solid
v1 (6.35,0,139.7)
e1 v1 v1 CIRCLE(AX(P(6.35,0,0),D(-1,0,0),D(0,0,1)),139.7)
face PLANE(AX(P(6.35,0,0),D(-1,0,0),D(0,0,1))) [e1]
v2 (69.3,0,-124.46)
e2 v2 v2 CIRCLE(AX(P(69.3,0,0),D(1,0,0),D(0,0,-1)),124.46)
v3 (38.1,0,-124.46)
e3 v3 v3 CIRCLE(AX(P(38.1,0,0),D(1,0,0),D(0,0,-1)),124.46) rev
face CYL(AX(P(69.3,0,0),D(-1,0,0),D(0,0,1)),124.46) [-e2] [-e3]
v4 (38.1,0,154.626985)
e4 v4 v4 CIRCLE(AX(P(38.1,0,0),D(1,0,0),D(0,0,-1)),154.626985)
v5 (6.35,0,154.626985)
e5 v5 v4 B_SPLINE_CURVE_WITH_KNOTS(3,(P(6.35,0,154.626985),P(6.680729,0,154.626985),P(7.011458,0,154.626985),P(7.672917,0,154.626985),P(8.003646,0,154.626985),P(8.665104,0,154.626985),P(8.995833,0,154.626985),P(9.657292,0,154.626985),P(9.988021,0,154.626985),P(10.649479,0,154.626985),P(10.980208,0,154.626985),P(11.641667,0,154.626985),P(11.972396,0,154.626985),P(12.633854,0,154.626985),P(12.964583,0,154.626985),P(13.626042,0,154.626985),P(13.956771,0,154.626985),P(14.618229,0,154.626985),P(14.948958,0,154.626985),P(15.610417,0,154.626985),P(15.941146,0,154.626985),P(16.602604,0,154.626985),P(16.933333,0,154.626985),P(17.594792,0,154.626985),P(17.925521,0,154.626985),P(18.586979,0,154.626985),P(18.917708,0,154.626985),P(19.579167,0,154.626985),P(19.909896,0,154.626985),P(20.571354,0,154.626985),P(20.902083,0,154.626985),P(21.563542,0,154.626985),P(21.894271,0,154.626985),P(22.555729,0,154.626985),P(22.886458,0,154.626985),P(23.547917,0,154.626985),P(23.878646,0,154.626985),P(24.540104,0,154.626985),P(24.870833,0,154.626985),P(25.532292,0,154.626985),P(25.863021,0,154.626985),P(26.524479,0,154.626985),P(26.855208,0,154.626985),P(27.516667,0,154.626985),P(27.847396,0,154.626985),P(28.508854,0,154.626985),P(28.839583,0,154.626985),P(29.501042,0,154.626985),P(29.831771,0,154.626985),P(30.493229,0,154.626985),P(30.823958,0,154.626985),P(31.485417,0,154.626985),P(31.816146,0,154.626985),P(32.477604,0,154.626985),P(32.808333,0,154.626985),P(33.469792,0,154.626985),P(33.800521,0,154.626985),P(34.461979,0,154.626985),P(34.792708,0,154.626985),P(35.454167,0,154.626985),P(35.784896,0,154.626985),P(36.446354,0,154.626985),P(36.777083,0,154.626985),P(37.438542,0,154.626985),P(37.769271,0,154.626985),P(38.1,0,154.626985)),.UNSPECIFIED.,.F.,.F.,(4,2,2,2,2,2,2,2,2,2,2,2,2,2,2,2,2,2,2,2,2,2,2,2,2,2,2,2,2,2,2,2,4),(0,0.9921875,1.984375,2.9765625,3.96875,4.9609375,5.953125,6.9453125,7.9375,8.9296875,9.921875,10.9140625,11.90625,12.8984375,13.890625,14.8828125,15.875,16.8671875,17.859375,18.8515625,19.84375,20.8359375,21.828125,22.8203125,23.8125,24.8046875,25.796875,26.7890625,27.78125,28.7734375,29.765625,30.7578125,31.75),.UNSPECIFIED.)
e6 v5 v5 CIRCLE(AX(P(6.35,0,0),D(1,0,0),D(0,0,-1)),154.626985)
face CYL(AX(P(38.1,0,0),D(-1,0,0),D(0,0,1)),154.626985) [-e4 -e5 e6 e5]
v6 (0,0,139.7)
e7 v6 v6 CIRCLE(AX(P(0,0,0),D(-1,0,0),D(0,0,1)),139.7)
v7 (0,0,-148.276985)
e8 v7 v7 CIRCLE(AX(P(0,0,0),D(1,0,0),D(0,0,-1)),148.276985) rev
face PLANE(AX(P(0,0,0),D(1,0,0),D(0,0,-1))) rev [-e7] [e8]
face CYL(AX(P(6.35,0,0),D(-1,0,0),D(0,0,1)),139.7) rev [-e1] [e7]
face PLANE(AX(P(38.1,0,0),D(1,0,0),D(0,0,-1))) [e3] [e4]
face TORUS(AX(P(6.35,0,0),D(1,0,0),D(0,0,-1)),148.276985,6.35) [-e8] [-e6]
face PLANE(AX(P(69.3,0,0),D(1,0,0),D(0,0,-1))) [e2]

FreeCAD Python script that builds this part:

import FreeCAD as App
import Part
import Sketcher
from FreeCAD import Vector
Q = App.Units.Quantity


def edges_at(feature, points):
    """Names of the edges that pass closest to the given points."""
    edges = feature.Shape.Edges
    near = lambda p: min(range(len(edges)), key=lambda i: edges[i].distToShape(Part.Vertex(*p))[0])
    return sorted({f"Edge{near(p) + 1}" for p in points})

doc = App.newDocument("Part")
params = doc.addObject("Spreadsheet::Sheet", "Params")
for row, (alias, value) in enumerate([
    ("pad1_length", "1.5 in"),
    ("sketch2_diameter", "9.8 in"),
    ("pad2_length", "69.3 mm"),
    ("sketch3_diameter", "11 in"),
    ("pocket1_length", "0.25 in"),
    ("fillet_radius", "0.25 in"),
], start=1):
    params.set(f"A{row}", alias)
    params.set(f"B{row}", "=" + value)
    params.setAlias(f"B{row}", alias)

body = doc.addObject("PartDesign::Body", "Body")

# Sketch on YZ plane
sketch1 = body.newObject("Sketcher::SketchObject", "Sketch")
sketch1.AttachmentSupport = (doc.getObject("YZ_Plane"), [""])
sketch1.MapMode = "FlatFace"
sketch1.addGeometry(Part.Circle(Vector(0, 0, 0), Vector(0, 0, 1), 155), False)
sketch1.addConstraint([
    Sketcher.Constraint("Coincident", 0, 3, -1, 1),
    Sketcher.Constraint("Diameter", 0, 309.25397),
])
pad1 = body.newObject("PartDesign::Pad", "Pad")
pad1.Profile = sketch1
pad1.setExpression("Length", "Params.pad1_length")

# Sketch on YZ plane
sketch2 = body.newObject("Sketcher::SketchObject", "Sketch001")
sketch2.AttachmentSupport = (doc.getObject("YZ_Plane"), [""])
sketch2.MapMode = "FlatFace"
sketch2.addGeometry(Part.Circle(Vector(0, 0, 0), Vector(0, 0, 1), 124), False)
sketch2.addConstraint([
    Sketcher.Constraint("Coincident", 0, 3, -1, 1),
    Sketcher.Constraint("Diameter", 0, Q("9.8 in")),
])
sketch2.setExpression("Constraints[1]", "Params.sketch2_diameter")
pad2 = body.newObject("PartDesign::Pad", "Pad001")
pad2.Profile = sketch2
pad2.setExpression("Length", "Params.pad2_length")

# Sketch on YZ plane
sketch3 = body.newObject("Sketcher::SketchObject", "Sketch002")
sketch3.AttachmentSupport = (doc.getObject("YZ_Plane"), [""])
sketch3.MapMode = "FlatFace"
sketch3.addGeometry(Part.Circle(Vector(0, 0, 0), Vector(0, 0, 1), 140), False)
sketch3.addConstraint([
    Sketcher.Constraint("Coincident", 0, 3, -1, 1),
    Sketcher.Constraint("Diameter", 0, Q("11 in")),
])
sketch3.setExpression("Constraints[1]", "Params.sketch3_diameter")
pocket1 = body.newObject("PartDesign::Pocket", "Pocket")
pocket1.Profile = sketch3
pocket1.setExpression("Length", "Params.pocket1_length")
pocket1.Reversed = True
doc.recompute()

fillet = body.newObject("PartDesign::Fillet", "Fillet")
fillet.Base = (pocket1, edges_at(pocket1, [(0, 0, -154.627)]))
fillet.setExpression("Radius", "Params.fillet_radius")

doc.recompute()
